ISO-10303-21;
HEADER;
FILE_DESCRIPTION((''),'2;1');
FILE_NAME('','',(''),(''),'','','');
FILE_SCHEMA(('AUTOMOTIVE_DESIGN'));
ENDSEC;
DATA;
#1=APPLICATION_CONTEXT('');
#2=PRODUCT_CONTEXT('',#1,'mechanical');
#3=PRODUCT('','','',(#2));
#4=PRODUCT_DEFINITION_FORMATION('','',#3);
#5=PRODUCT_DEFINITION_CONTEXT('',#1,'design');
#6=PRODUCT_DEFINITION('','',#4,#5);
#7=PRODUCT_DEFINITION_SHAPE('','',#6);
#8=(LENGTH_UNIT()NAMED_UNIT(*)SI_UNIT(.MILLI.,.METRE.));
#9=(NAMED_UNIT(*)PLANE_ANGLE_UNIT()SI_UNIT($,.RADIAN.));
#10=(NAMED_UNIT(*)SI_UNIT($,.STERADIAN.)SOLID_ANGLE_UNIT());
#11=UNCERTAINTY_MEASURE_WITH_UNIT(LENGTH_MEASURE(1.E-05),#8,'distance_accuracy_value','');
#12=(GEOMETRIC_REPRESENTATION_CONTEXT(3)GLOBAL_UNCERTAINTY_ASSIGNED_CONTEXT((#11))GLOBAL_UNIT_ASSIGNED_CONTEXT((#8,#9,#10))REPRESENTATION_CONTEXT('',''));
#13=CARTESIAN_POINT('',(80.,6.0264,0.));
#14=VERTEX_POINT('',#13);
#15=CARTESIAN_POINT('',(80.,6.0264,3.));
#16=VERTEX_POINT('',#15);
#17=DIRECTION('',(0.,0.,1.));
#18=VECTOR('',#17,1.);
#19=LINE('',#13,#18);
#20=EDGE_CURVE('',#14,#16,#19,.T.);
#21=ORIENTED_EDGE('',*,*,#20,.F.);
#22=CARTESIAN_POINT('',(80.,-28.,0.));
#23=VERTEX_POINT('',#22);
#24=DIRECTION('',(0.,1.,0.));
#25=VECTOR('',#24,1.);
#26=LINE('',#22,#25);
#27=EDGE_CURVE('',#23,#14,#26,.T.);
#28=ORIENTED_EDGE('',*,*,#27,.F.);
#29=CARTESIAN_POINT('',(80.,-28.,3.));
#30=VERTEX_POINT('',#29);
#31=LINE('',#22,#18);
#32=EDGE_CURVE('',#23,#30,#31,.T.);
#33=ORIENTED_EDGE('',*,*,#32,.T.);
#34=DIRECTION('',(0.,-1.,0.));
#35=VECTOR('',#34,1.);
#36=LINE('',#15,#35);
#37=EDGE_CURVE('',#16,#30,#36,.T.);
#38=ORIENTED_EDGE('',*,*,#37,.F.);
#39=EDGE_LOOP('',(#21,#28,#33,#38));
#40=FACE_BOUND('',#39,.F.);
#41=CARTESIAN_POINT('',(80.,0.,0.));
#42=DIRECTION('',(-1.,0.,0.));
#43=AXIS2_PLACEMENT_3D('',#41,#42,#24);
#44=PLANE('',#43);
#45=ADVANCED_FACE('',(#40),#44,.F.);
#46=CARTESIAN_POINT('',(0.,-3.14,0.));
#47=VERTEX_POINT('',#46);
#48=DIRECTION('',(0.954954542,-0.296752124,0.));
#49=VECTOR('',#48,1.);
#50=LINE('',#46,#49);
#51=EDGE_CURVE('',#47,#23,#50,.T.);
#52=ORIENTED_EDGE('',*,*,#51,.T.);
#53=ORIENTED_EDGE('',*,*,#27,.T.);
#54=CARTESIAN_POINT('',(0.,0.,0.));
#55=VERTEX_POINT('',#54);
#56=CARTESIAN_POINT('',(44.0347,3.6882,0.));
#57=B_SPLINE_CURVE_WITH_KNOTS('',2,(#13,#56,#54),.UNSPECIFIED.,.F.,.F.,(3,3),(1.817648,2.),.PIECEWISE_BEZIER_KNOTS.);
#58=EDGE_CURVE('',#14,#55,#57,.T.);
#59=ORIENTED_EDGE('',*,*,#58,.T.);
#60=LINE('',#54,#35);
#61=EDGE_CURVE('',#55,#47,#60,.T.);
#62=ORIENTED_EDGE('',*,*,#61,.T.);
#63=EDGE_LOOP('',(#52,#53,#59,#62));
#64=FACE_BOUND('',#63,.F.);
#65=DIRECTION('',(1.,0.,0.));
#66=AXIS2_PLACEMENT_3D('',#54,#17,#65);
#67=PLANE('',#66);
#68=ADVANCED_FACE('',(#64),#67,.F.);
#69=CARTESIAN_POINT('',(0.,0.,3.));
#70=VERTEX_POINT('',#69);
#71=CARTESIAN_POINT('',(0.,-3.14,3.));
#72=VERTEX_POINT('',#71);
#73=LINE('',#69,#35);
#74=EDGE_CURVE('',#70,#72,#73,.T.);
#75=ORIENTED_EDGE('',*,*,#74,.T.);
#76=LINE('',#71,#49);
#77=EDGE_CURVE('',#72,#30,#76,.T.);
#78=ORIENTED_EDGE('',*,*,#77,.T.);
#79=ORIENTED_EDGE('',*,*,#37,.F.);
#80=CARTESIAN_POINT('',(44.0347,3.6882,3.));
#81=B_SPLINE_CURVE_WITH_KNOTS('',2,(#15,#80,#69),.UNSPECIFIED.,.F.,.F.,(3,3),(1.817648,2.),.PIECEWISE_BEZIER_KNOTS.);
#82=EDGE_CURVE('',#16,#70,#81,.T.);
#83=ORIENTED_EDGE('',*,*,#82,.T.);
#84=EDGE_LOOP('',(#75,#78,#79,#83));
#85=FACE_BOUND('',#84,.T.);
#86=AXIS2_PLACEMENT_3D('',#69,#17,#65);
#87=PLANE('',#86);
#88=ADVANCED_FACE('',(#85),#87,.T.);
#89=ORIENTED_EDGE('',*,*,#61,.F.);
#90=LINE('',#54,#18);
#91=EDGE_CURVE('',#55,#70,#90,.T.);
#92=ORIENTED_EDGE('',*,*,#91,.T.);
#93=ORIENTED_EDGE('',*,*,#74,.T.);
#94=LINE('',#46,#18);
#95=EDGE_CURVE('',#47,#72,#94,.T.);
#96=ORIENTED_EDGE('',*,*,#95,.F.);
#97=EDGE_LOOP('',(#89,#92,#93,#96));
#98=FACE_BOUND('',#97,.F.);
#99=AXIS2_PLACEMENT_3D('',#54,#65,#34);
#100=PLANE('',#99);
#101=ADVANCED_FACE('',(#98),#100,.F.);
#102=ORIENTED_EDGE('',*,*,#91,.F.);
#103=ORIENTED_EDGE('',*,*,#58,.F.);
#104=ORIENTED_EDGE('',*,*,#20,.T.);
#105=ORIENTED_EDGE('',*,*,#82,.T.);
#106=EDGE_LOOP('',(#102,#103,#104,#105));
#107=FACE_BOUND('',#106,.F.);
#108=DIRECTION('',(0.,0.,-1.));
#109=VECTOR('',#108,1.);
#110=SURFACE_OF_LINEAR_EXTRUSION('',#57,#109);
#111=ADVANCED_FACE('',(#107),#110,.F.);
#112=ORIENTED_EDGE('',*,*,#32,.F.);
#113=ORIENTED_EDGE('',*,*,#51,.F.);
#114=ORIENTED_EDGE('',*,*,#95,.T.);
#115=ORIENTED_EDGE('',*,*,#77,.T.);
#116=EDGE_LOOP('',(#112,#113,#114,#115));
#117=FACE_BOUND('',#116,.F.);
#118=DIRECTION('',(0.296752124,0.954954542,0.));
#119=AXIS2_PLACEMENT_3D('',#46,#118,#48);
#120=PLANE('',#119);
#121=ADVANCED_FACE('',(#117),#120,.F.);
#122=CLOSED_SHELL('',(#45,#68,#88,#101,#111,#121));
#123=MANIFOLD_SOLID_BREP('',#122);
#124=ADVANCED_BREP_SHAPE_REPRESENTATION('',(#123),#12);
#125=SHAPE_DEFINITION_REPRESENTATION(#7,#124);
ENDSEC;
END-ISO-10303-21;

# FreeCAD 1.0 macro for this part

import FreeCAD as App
import Part
import Sketcher
from FreeCAD import Vector

doc = App.newDocument("Part")
body = doc.addObject("PartDesign::Body", "Body")

# Sketch on XY plane
sketch1 = body.newObject("Sketcher::SketchObject", "Sketch")
sketch1.AttachmentSupport = (doc.getObject("XY_Plane"), [""])
sketch1.MapMode = "FlatFace"
sketch1.addGeometry([
    Part.BSplineCurve([Vector(80, 6.0264, 0), Vector(44.0347, 3.6882, 0), Vector(0, 0, 0)], [3, 3], [1.817648, 2], False, 2, [1, 1, 1], False),
    Part.LineSegment(Vector(0, 0, 0), Vector(0, -3.14, 0)),
    Part.LineSegment(Vector(0, -3.14, 0), Vector(80, -28, 0)),
    Part.LineSegment(Vector(80, -28, 0), Vector(80, 6.0264, 0)),
], False)
sketch1.addConstraint([
    Sketcher.Constraint("Block", 0),
    Sketcher.Constraint("Coincident", 0, 2, 1, 1),
    Sketcher.Constraint("Coincident", 1, 2, 2, 1),
    Sketcher.Constraint("Coincident", 2, 2, 3, 1),
    Sketcher.Constraint("Coincident", 3, 2, 0, 1),
    Sketcher.Constraint("Vertical", 1),
    Sketcher.Constraint("Vertical", 3),
    Sketcher.Constraint("DistanceY", 2, 2, -1, 1, 28.0),
    Sketcher.Constraint("DistanceY", 1, 2, 1, 1, 3.14),
])
pad1 = body.newObject("PartDesign::Pad", "Pad")
pad1.Profile = sketch1
pad1.Length = 3

doc.recompute()
